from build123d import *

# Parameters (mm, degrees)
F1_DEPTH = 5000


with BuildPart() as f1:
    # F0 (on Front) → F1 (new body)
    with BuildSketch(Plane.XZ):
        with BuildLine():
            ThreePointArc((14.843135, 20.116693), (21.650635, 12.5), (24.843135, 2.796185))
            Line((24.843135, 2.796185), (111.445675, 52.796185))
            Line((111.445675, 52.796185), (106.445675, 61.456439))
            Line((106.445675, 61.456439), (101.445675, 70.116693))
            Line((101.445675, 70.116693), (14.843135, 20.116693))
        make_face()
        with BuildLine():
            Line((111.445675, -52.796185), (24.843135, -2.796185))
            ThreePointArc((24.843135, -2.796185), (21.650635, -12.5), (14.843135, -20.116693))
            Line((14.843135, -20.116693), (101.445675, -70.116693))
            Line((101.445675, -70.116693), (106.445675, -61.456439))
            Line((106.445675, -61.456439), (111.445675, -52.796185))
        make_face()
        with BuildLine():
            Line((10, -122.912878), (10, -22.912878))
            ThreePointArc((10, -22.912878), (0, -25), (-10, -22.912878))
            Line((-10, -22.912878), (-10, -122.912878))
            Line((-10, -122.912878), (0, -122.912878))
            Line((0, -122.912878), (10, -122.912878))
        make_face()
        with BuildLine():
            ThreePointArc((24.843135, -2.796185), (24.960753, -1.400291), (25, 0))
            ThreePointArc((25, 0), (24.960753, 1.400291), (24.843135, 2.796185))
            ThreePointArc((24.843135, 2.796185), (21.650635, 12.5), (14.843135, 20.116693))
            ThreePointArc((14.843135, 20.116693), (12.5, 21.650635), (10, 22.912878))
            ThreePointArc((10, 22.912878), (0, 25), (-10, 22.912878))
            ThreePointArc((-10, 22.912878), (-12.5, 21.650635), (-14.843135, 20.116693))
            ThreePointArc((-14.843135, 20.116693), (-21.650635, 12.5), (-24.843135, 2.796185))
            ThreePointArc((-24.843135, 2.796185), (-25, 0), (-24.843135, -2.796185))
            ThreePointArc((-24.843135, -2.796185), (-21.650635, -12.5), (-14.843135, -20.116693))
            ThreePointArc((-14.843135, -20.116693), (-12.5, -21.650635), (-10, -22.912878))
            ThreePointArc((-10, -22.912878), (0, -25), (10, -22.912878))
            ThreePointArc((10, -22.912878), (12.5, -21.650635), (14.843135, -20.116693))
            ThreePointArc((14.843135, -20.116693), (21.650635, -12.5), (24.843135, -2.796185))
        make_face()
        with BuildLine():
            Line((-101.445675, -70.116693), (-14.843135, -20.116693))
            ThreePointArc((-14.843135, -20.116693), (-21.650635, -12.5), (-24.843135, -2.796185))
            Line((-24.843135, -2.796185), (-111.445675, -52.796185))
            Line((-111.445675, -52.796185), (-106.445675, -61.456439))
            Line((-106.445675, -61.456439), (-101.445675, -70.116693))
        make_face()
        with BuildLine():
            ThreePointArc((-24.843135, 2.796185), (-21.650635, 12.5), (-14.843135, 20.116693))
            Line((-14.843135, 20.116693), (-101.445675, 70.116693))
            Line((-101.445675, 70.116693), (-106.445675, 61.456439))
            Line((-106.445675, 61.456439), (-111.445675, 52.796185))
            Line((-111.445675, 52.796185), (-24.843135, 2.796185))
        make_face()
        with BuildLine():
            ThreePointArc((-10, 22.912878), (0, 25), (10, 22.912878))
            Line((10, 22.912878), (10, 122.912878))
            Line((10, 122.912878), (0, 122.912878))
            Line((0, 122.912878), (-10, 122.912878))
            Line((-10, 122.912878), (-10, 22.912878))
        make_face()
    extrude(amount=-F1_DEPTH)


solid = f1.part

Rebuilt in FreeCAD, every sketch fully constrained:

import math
import FreeCAD as App
import Part
import Sketcher

V = App.Vector
Q = App.Units.Quantity

doc = App.newDocument("Part")
params = doc.addObject("Spreadsheet::Sheet", "Params")
for row, (alias, value) in enumerate([
    ("sketch1_width", "20 mm"),
    ("sketch1_height", "100 mm"),
    ("sketch1_length", "100 mm"),
    ("sketch1_length2", "20 mm"),
    ("pad1_length", "5000 mm"),
], start=1):
    params.set(f"A{row}", alias)
    params.set(f"B{row}", "=" + value)
    params.setAlias(f"B{row}", alias)

body = doc.addObject("PartDesign::Body", "Body")

sketch1 = doc.addObject("Sketcher::SketchObject", "Sketch")
body.addObject(sketch1)
sketch1.AttachmentSupport = (doc.XZ_Plane, [""])
sketch1.MapMode = "FlatFace"
sketch1.addGeometry(Part.LineSegment(V(24.843135, 2.796185, 0), V(111.445675, 52.796185, 0)), False)
sketch1.addGeometry(Part.LineSegment(V(111.445675, 52.796185, 0), V(101.445675, 70.116693, 0)), False)
sketch1.addGeometry(Part.LineSegment(V(101.445675, 70.116693, 0), V(14.843135, 20.116693, 0)), False)
sketch1.addGeometry(Part.ArcOfCircle(Part.Circle(V(0.000017, 0.000026, 0), V(0, 0, 1), 24.999969), math.radians(53.578173), math.radians(66.421832)), False)
sketch1.addGeometry(Part.LineSegment(V(10, 22.912878, 0), V(10, 122.912878, 0)), False)
sketch1.addGeometry(Part.LineSegment(V(10, 122.912878, 0), V(-10, 122.912878, 0)), False)
sketch1.addGeometry(Part.LineSegment(V(-10, 122.912878, 0), V(-10, 22.912878, 0)), False)
sketch1.addGeometry(Part.ArcOfCircle(Part.Circle(V(-0.000017, 0.000026, 0), V(0, 0, 1), 24.999969), math.radians(113.578168), math.radians(126.421827)), False)
sketch1.addGeometry(Part.LineSegment(V(-14.843135, 20.116693, 0), V(-101.445675, 70.116693, 0)), False)
sketch1.addGeometry(Part.LineSegment(V(-101.445675, 70.116693, 0), V(-111.445675, 52.796185, 0)), False)
sketch1.addGeometry(Part.LineSegment(V(-111.445675, 52.796185, 0), V(-24.843135, 2.796185, 0)), False)
sketch1.addGeometry(Part.ArcOfCircle(Part.Circle(V(0.000023, 0, 0), V(0, 0, 1), 25.000023), math.radians(173.578185), math.radians(186.421815)), False)
sketch1.addGeometry(Part.LineSegment(V(-24.843135, -2.796185, 0), V(-111.445675, -52.796185, 0)), False)
sketch1.addGeometry(Part.LineSegment(V(-111.445675, -52.796185, 0), V(-101.445675, -70.116693, 0)), False)
sketch1.addGeometry(Part.LineSegment(V(-101.445675, -70.116693, 0), V(-14.843135, -20.116693, 0)), False)
sketch1.addGeometry(Part.ArcOfCircle(Part.Circle(V(-0.000017, -0.000026, 0), V(0, 0, 1), 24.999969), math.radians(-126.421827), math.radians(-113.578168)), False)
sketch1.addGeometry(Part.LineSegment(V(-10, -22.912878, 0), V(-10, -122.912878, 0)), False)
sketch1.addGeometry(Part.LineSegment(V(-10, -122.912878, 0), V(10, -122.912878, 0)), False)
sketch1.addGeometry(Part.LineSegment(V(10, -122.912878, 0), V(10, -22.912878, 0)), False)
sketch1.addGeometry(Part.ArcOfCircle(Part.Circle(V(0.000017, -0.000026, 0), V(0, 0, 1), 24.999969), math.radians(-66.421832), math.radians(-53.578173)), False)
sketch1.addGeometry(Part.LineSegment(V(14.843135, -20.116693, 0), V(101.445675, -70.116693, 0)), False)
sketch1.addGeometry(Part.LineSegment(V(101.445675, -70.116693, 0), V(111.445675, -52.796185, 0)), False)
sketch1.addGeometry(Part.LineSegment(V(111.445675, -52.796185, 0), V(24.843135, -2.796185, 0)), False)
sketch1.addGeometry(Part.ArcOfCircle(Part.Circle(V(0.000021, -0.000002, 0), V(0, 0, 1), 24.999979), math.radians(-6.421821), math.radians(0.000006)), False)
sketch1.addGeometry(Part.ArcOfCircle(Part.Circle(V(0.000021, 0.000002, 0), V(0, 0, 1), 24.999979), math.radians(-0.000006), math.radians(6.421821)), False)
sketch1.addConstraint(Sketcher.Constraint("Coincident", 0, 2, 1, 1))
sketch1.addConstraint(Sketcher.Constraint("Coincident", 1, 2, 2, 1))
sketch1.addConstraint(Sketcher.Constraint("Coincident", 2, 2, 3, 1))
sketch1.addConstraint(Sketcher.Constraint("Coincident", 3, 2, 4, 1))
sketch1.addConstraint(Sketcher.Constraint("Coincident", 4, 2, 5, 1))
sketch1.addConstraint(Sketcher.Constraint("Coincident", 5, 2, 6, 1))
sketch1.addConstraint(Sketcher.Constraint("Coincident", 6, 2, 7, 1))
sketch1.addConstraint(Sketcher.Constraint("Coincident", 7, 2, 8, 1))
sketch1.addConstraint(Sketcher.Constraint("Coincident", 8, 2, 9, 1))
sketch1.addConstraint(Sketcher.Constraint("Coincident", 9, 2, 10, 1))
sketch1.addConstraint(Sketcher.Constraint("Coincident", 10, 2, 11, 1))
sketch1.addConstraint(Sketcher.Constraint("Coincident", 11, 2, 12, 1))
sketch1.addConstraint(Sketcher.Constraint("Coincident", 12, 2, 13, 1))
sketch1.addConstraint(Sketcher.Constraint("Coincident", 13, 2, 14, 1))
sketch1.addConstraint(Sketcher.Constraint("Coincident", 14, 2, 15, 1))
sketch1.addConstraint(Sketcher.Constraint("Coincident", 15, 2, 16, 1))
sketch1.addConstraint(Sketcher.Constraint("Coincident", 16, 2, 17, 1))
sketch1.addConstraint(Sketcher.Constraint("Coincident", 17, 2, 18, 1))
sketch1.addConstraint(Sketcher.Constraint("Coincident", 18, 2, 19, 1))
sketch1.addConstraint(Sketcher.Constraint("Coincident", 19, 2, 20, 1))
sketch1.addConstraint(Sketcher.Constraint("Coincident", 20, 2, 21, 1))
sketch1.addConstraint(Sketcher.Constraint("Coincident", 21, 2, 22, 1))
sketch1.addConstraint(Sketcher.Constraint("Coincident", 22, 2, 23, 1))
sketch1.addConstraint(Sketcher.Constraint("Tangent", 23, 2, 24, 1))
sketch1.addConstraint(Sketcher.Constraint("Coincident", 24, 2, 0, 1))
sketch1.addConstraint(Sketcher.Constraint("Vertical", 4))
sketch1.addConstraint(Sketcher.Constraint("Horizontal", 5))
sketch1.addConstraint(Sketcher.Constraint("Vertical", 6))
sketch1.addConstraint(Sketcher.Constraint("Vertical", 16))
sketch1.addConstraint(Sketcher.Constraint("Horizontal", 17))
sketch1.addConstraint(Sketcher.Constraint("Vertical", 18))
sketch1.addConstraint(Sketcher.Constraint("Coincident", 23, 3, 11, 3))
sketch1.addConstraint(Sketcher.Constraint("Equal", 3, 7))
sketch1.addConstraint(Sketcher.Constraint("Equal", 7, 15))
sketch1.addConstraint(Sketcher.Constraint("Equal", 15, 19))
sketch1.addConstraint(Sketcher.Constraint("Equal", 23, 24))
sketch1.addConstraint(Sketcher.Constraint("Symmetric", 3, 3, 15, 3, -1, 1))
sketch1.addConstraint(Sketcher.Constraint("Symmetric", 7, 3, 19, 3, -1, 1))
sketch1.addConstraint(Sketcher.Constraint("Symmetric", 0, 2, 12, 2, -1, 1))
sketch1.addConstraint(Sketcher.Constraint("Symmetric", 1, 2, 13, 2, -1, 1))
sketch1.addConstraint(Sketcher.Constraint("Symmetric", 4, 2, 16, 2, -1, 1))
sketch1.addConstraint(Sketcher.Constraint("Symmetric", 8, 2, 20, 2, -1, 1))
sketch1.addConstraint(Sketcher.Constraint("Symmetric", 9, 2, 21, 2, -1, 1))
sketch1.addConstraint(Sketcher.Constraint("Symmetric", 10, 2, 22, 2, -1, 1))
sketch1.addConstraint(Sketcher.Constraint("Symmetric", 11, 2, 24, 2, -1, 1))
sketch1.addConstraint(Sketcher.Constraint("Symmetric", 3, 3, 7, 3, -2))
sketch1.addConstraint(Sketcher.Constraint("Symmetric", 1, 2, 8, 2, -2))
sketch1.addConstraint(Sketcher.Constraint("Symmetric", 0, 2, 9, 2, -2))
sketch1.addConstraint(Sketcher.Constraint("PointOnObject", 23, 2, -1))
sketch1.addConstraint(Sketcher.Constraint("Perpendicular", 0, 1))
sketch1.addConstraint(Sketcher.Constraint("Perpendicular", 1, 2))
sketch1.addConstraint(Sketcher.Constraint("Perpendicular", 8, 9))
sketch1.addConstraint(Sketcher.Constraint("Perpendicular", 9, 10))
sketch1.addConstraint(Sketcher.Constraint("Perpendicular", 13, 14))
sketch1.addConstraint(Sketcher.Constraint("Parallel", 10, 20))
sketch1.addConstraint(Sketcher.Constraint("Horizontal", 3, 2, 6, 2))
sketch1.addConstraint(Sketcher.Constraint("Horizontal", 15, 2, 18, 2))
sketch1.addConstraint(Sketcher.Constraint("Equal", 0, 2))
sketch1.addConstraint(Sketcher.Constraint("DistanceX", 5, 2, 5, 1, 20.0))
sketch1.addConstraint(Sketcher.Constraint("DistanceY", 4, 1, 4, 2, 100.0))
sketch1.addConstraint(Sketcher.Constraint("Angle", 0, Q("30 deg")))
sketch1.addConstraint(Sketcher.Constraint("Distance", 0, 100.0))
sketch1.addConstraint(Sketcher.Constraint("Distance", 1, 20.0))
sketch1.addConstraint(Sketcher.Constraint("DistanceX", -1, 1, 23, 2, 25.0))
sketch1.addConstraint(Sketcher.Constraint("Radius", 3, 24.999969))
sketch1.addConstraint(Sketcher.Constraint("Radius", 23, 24.999979))
sketch1.addConstraint(Sketcher.Constraint("DistanceY", -1, 1, 3, 2, 22.912878))
sketch1.addConstraint(Sketcher.Constraint("DistanceX", 3, 3, 0, 2, 111.445658))
sketch1.setExpression("Constraints[58]", "Params.sketch1_width")
sketch1.setExpression("Constraints[59]", "Params.sketch1_height")
sketch1.setExpression("Constraints[61]", "Params.sketch1_length")
sketch1.setExpression("Constraints[62]", "Params.sketch1_length2")
pad1 = doc.addObject("PartDesign::Pad", "Pad")
body.addObject(pad1)
pad1.Profile = sketch1
pad1.setExpression("Length", "Params.pad1_length")
pad1.Reversed = True

doc.recompute()
